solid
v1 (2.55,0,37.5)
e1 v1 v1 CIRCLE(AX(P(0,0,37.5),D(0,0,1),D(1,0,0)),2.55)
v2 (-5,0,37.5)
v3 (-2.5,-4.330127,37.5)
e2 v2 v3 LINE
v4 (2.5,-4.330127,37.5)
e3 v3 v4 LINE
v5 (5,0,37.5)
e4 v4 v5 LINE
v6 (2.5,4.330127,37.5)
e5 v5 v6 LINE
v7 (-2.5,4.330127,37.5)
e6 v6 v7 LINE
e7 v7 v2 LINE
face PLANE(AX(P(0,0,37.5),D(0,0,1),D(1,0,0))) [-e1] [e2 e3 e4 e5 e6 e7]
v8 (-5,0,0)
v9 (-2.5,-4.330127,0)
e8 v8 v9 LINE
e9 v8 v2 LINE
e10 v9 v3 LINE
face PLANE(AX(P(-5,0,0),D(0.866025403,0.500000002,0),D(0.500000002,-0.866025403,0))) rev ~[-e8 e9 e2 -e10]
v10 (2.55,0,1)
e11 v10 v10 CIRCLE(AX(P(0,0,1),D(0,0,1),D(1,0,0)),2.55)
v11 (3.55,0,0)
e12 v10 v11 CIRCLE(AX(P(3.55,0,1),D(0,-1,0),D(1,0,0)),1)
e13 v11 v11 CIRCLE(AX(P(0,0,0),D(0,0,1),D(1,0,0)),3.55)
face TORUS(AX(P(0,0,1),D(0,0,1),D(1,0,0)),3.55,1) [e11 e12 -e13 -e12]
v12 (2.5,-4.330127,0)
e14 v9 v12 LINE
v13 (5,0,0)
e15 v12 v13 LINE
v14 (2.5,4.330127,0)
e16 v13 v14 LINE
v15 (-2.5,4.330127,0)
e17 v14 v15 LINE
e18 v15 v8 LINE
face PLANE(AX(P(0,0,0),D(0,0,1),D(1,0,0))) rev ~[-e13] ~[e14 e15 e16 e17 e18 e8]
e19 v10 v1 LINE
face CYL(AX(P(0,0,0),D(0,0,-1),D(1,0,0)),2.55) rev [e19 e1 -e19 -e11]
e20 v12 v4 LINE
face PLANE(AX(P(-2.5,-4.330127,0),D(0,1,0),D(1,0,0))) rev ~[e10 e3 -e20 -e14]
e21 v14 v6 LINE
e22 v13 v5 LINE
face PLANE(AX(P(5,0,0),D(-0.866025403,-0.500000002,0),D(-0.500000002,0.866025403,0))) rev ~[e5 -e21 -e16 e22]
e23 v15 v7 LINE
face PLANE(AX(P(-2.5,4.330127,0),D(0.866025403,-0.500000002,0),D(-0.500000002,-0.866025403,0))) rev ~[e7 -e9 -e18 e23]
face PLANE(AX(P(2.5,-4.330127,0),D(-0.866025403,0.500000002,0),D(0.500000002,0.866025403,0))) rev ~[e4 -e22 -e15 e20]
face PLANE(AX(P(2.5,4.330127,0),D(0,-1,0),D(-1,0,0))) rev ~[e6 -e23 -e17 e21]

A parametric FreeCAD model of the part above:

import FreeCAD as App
import Part
import Sketcher

V = App.Vector
Q = App.Units.Quantity


def edges_at(feature, points):
    """Names of the edges that pass closest to the given points."""
    edges = feature.Shape.Edges
    near = lambda p: min(range(len(edges)), key=lambda i: edges[i].distToShape(Part.Vertex(*p))[0])
    return sorted({f"Edge{near(p) + 1}" for p in points})


def add_polygon(sketch, points):
    """Adds a closed chain of lines whose ends are joined by coincident constraints."""
    first, n = sketch.GeometryCount, len(points)
    for a, b in zip(points, points[1:] + points[:1]):
        sketch.addGeometry(Part.LineSegment(App.Vector(*a, 0), App.Vector(*b, 0)), False)
    for i in range(n):
        sketch.addConstraint(Sketcher.Constraint("Coincident", first + i, 2, first + (i + 1) % n, 1))

doc = App.newDocument("Part")
body = doc.addObject("PartDesign::Body", "Body")

# Sketch on XY plane
sketch1 = doc.addObject("Sketcher::SketchObject", "Sketch")
body.addObject(sketch1)
sketch1.AttachmentSupport = (doc.XY_Plane, [""])
sketch1.MapMode = "FlatFace"
add_polygon(sketch1, [(-5, 0), (-2.5, -4.330127), (2.5, -4.330127), (5, 0), (2.5, 4.330127), (-2.5, 4.330127)])  # lines 0-5
sketch1.addGeometry(Part.Circle(V(0, 0, 0), V(0, 0, 1), 2.55), False)  # 6
sketch1.addConstraint(Sketcher.Constraint("Horizontal", 1))
sketch1.addConstraint(Sketcher.Constraint("Horizontal", 4))
sketch1.addConstraint(Sketcher.Constraint("Coincident", 6, 3, -1, 1))
sketch1.addConstraint(Sketcher.Constraint("Symmetric", 0, 2, 3, 2, -1, 1))
sketch1.addConstraint(Sketcher.Constraint("Symmetric", 2, 2, 5, 2, -1, 1))
sketch1.addConstraint(Sketcher.Constraint("PointOnObject", 2, 2, -1))
sketch1.addConstraint(Sketcher.Constraint("Parallel", 2, 5))
sketch1.addConstraint(Sketcher.Constraint("Vertical", 1, 2, 3, 2))
sketch1.addConstraint(Sketcher.Constraint("Diameter", 6, Q("5.1 mm")))
sketch1.addConstraint(Sketcher.Constraint("DistanceX", 1, 1, 1, 2, Q("5 mm")))
sketch1.addConstraint(Sketcher.Constraint("Angle", 0, Q("-60 deg")))
sketch1.addConstraint(Sketcher.Constraint("Distance", 0, Q("5 mm")))
pad1 = doc.addObject("PartDesign::Pad", "Pad")
body.addObject(pad1)
pad1.Profile = sketch1
pad1.Length = 37.5
doc.recompute()

fillet = doc.addObject("PartDesign::Fillet", "Fillet")
body.addObject(fillet)
fillet.Base = (pad1, edges_at(pad1, [(-2.55, 0, 0)]))
fillet.Radius = 1

doc.recompute()
